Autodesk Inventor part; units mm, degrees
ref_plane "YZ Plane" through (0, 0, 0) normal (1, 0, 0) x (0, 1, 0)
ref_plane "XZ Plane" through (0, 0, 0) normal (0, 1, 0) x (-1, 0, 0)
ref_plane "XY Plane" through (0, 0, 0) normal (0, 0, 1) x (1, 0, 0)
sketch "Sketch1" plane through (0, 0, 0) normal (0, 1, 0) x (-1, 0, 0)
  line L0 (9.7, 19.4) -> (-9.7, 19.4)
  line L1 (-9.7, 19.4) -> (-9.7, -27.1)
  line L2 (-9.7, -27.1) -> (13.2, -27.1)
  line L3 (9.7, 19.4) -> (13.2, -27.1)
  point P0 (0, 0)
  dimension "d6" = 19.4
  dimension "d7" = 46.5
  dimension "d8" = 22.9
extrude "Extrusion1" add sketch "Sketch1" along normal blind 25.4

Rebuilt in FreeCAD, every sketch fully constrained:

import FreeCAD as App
import Part
import Sketcher

V = App.Vector

doc = App.newDocument("Part")
body = doc.addObject("PartDesign::Body", "Body")

# Sketch on XZ plane
sketch1 = body.newObject("Sketcher::SketchObject", "Sketch")
sketch1.AttachmentSupport = (doc.getObject("XZ_Plane"), [""])
sketch1.MapMode = "FlatFace"
sketch1.addGeometry([
    Part.LineSegment(V(-13, -27, 0), V(-10, 19, 0)),
    Part.LineSegment(V(-10, 19, 0), V(10, 19, 0)),
    Part.LineSegment(V(10, 19, 0), V(10, -27, 0)),
    Part.LineSegment(V(10, -27, 0), V(-13, -27, 0)),
], False)
sketch1.addConstraint([
    Sketcher.Constraint("Coincident", 0, 2, 1, 1),
    Sketcher.Constraint("Coincident", 1, 2, 2, 1),
    Sketcher.Constraint("Coincident", 2, 2, 3, 1),
    Sketcher.Constraint("Coincident", 3, 2, 0, 1),
    Sketcher.Constraint("Horizontal", 1),
    Sketcher.Constraint("Vertical", 2),
    Sketcher.Constraint("Horizontal", 3),
    Sketcher.Constraint("DistanceX", 1, 1, 1, 2, 19.4),
    Sketcher.Constraint("DistanceX", 3, 2, 3, 1, 22.9),
    Sketcher.Constraint("DistanceY", 2, 2, 2, 1, 46.5),
    Sketcher.Constraint("DistanceY", -1, 1, 0, 2, 19.4),
    Sketcher.Constraint("DistanceX", 0, 2, -1, 1, 9.7),
])
pad1 = body.newObject("PartDesign::Pad", "Pad")
pad1.Profile = sketch1
pad1.Length = 25.4
pad1.Reversed = True

doc.recompute()
